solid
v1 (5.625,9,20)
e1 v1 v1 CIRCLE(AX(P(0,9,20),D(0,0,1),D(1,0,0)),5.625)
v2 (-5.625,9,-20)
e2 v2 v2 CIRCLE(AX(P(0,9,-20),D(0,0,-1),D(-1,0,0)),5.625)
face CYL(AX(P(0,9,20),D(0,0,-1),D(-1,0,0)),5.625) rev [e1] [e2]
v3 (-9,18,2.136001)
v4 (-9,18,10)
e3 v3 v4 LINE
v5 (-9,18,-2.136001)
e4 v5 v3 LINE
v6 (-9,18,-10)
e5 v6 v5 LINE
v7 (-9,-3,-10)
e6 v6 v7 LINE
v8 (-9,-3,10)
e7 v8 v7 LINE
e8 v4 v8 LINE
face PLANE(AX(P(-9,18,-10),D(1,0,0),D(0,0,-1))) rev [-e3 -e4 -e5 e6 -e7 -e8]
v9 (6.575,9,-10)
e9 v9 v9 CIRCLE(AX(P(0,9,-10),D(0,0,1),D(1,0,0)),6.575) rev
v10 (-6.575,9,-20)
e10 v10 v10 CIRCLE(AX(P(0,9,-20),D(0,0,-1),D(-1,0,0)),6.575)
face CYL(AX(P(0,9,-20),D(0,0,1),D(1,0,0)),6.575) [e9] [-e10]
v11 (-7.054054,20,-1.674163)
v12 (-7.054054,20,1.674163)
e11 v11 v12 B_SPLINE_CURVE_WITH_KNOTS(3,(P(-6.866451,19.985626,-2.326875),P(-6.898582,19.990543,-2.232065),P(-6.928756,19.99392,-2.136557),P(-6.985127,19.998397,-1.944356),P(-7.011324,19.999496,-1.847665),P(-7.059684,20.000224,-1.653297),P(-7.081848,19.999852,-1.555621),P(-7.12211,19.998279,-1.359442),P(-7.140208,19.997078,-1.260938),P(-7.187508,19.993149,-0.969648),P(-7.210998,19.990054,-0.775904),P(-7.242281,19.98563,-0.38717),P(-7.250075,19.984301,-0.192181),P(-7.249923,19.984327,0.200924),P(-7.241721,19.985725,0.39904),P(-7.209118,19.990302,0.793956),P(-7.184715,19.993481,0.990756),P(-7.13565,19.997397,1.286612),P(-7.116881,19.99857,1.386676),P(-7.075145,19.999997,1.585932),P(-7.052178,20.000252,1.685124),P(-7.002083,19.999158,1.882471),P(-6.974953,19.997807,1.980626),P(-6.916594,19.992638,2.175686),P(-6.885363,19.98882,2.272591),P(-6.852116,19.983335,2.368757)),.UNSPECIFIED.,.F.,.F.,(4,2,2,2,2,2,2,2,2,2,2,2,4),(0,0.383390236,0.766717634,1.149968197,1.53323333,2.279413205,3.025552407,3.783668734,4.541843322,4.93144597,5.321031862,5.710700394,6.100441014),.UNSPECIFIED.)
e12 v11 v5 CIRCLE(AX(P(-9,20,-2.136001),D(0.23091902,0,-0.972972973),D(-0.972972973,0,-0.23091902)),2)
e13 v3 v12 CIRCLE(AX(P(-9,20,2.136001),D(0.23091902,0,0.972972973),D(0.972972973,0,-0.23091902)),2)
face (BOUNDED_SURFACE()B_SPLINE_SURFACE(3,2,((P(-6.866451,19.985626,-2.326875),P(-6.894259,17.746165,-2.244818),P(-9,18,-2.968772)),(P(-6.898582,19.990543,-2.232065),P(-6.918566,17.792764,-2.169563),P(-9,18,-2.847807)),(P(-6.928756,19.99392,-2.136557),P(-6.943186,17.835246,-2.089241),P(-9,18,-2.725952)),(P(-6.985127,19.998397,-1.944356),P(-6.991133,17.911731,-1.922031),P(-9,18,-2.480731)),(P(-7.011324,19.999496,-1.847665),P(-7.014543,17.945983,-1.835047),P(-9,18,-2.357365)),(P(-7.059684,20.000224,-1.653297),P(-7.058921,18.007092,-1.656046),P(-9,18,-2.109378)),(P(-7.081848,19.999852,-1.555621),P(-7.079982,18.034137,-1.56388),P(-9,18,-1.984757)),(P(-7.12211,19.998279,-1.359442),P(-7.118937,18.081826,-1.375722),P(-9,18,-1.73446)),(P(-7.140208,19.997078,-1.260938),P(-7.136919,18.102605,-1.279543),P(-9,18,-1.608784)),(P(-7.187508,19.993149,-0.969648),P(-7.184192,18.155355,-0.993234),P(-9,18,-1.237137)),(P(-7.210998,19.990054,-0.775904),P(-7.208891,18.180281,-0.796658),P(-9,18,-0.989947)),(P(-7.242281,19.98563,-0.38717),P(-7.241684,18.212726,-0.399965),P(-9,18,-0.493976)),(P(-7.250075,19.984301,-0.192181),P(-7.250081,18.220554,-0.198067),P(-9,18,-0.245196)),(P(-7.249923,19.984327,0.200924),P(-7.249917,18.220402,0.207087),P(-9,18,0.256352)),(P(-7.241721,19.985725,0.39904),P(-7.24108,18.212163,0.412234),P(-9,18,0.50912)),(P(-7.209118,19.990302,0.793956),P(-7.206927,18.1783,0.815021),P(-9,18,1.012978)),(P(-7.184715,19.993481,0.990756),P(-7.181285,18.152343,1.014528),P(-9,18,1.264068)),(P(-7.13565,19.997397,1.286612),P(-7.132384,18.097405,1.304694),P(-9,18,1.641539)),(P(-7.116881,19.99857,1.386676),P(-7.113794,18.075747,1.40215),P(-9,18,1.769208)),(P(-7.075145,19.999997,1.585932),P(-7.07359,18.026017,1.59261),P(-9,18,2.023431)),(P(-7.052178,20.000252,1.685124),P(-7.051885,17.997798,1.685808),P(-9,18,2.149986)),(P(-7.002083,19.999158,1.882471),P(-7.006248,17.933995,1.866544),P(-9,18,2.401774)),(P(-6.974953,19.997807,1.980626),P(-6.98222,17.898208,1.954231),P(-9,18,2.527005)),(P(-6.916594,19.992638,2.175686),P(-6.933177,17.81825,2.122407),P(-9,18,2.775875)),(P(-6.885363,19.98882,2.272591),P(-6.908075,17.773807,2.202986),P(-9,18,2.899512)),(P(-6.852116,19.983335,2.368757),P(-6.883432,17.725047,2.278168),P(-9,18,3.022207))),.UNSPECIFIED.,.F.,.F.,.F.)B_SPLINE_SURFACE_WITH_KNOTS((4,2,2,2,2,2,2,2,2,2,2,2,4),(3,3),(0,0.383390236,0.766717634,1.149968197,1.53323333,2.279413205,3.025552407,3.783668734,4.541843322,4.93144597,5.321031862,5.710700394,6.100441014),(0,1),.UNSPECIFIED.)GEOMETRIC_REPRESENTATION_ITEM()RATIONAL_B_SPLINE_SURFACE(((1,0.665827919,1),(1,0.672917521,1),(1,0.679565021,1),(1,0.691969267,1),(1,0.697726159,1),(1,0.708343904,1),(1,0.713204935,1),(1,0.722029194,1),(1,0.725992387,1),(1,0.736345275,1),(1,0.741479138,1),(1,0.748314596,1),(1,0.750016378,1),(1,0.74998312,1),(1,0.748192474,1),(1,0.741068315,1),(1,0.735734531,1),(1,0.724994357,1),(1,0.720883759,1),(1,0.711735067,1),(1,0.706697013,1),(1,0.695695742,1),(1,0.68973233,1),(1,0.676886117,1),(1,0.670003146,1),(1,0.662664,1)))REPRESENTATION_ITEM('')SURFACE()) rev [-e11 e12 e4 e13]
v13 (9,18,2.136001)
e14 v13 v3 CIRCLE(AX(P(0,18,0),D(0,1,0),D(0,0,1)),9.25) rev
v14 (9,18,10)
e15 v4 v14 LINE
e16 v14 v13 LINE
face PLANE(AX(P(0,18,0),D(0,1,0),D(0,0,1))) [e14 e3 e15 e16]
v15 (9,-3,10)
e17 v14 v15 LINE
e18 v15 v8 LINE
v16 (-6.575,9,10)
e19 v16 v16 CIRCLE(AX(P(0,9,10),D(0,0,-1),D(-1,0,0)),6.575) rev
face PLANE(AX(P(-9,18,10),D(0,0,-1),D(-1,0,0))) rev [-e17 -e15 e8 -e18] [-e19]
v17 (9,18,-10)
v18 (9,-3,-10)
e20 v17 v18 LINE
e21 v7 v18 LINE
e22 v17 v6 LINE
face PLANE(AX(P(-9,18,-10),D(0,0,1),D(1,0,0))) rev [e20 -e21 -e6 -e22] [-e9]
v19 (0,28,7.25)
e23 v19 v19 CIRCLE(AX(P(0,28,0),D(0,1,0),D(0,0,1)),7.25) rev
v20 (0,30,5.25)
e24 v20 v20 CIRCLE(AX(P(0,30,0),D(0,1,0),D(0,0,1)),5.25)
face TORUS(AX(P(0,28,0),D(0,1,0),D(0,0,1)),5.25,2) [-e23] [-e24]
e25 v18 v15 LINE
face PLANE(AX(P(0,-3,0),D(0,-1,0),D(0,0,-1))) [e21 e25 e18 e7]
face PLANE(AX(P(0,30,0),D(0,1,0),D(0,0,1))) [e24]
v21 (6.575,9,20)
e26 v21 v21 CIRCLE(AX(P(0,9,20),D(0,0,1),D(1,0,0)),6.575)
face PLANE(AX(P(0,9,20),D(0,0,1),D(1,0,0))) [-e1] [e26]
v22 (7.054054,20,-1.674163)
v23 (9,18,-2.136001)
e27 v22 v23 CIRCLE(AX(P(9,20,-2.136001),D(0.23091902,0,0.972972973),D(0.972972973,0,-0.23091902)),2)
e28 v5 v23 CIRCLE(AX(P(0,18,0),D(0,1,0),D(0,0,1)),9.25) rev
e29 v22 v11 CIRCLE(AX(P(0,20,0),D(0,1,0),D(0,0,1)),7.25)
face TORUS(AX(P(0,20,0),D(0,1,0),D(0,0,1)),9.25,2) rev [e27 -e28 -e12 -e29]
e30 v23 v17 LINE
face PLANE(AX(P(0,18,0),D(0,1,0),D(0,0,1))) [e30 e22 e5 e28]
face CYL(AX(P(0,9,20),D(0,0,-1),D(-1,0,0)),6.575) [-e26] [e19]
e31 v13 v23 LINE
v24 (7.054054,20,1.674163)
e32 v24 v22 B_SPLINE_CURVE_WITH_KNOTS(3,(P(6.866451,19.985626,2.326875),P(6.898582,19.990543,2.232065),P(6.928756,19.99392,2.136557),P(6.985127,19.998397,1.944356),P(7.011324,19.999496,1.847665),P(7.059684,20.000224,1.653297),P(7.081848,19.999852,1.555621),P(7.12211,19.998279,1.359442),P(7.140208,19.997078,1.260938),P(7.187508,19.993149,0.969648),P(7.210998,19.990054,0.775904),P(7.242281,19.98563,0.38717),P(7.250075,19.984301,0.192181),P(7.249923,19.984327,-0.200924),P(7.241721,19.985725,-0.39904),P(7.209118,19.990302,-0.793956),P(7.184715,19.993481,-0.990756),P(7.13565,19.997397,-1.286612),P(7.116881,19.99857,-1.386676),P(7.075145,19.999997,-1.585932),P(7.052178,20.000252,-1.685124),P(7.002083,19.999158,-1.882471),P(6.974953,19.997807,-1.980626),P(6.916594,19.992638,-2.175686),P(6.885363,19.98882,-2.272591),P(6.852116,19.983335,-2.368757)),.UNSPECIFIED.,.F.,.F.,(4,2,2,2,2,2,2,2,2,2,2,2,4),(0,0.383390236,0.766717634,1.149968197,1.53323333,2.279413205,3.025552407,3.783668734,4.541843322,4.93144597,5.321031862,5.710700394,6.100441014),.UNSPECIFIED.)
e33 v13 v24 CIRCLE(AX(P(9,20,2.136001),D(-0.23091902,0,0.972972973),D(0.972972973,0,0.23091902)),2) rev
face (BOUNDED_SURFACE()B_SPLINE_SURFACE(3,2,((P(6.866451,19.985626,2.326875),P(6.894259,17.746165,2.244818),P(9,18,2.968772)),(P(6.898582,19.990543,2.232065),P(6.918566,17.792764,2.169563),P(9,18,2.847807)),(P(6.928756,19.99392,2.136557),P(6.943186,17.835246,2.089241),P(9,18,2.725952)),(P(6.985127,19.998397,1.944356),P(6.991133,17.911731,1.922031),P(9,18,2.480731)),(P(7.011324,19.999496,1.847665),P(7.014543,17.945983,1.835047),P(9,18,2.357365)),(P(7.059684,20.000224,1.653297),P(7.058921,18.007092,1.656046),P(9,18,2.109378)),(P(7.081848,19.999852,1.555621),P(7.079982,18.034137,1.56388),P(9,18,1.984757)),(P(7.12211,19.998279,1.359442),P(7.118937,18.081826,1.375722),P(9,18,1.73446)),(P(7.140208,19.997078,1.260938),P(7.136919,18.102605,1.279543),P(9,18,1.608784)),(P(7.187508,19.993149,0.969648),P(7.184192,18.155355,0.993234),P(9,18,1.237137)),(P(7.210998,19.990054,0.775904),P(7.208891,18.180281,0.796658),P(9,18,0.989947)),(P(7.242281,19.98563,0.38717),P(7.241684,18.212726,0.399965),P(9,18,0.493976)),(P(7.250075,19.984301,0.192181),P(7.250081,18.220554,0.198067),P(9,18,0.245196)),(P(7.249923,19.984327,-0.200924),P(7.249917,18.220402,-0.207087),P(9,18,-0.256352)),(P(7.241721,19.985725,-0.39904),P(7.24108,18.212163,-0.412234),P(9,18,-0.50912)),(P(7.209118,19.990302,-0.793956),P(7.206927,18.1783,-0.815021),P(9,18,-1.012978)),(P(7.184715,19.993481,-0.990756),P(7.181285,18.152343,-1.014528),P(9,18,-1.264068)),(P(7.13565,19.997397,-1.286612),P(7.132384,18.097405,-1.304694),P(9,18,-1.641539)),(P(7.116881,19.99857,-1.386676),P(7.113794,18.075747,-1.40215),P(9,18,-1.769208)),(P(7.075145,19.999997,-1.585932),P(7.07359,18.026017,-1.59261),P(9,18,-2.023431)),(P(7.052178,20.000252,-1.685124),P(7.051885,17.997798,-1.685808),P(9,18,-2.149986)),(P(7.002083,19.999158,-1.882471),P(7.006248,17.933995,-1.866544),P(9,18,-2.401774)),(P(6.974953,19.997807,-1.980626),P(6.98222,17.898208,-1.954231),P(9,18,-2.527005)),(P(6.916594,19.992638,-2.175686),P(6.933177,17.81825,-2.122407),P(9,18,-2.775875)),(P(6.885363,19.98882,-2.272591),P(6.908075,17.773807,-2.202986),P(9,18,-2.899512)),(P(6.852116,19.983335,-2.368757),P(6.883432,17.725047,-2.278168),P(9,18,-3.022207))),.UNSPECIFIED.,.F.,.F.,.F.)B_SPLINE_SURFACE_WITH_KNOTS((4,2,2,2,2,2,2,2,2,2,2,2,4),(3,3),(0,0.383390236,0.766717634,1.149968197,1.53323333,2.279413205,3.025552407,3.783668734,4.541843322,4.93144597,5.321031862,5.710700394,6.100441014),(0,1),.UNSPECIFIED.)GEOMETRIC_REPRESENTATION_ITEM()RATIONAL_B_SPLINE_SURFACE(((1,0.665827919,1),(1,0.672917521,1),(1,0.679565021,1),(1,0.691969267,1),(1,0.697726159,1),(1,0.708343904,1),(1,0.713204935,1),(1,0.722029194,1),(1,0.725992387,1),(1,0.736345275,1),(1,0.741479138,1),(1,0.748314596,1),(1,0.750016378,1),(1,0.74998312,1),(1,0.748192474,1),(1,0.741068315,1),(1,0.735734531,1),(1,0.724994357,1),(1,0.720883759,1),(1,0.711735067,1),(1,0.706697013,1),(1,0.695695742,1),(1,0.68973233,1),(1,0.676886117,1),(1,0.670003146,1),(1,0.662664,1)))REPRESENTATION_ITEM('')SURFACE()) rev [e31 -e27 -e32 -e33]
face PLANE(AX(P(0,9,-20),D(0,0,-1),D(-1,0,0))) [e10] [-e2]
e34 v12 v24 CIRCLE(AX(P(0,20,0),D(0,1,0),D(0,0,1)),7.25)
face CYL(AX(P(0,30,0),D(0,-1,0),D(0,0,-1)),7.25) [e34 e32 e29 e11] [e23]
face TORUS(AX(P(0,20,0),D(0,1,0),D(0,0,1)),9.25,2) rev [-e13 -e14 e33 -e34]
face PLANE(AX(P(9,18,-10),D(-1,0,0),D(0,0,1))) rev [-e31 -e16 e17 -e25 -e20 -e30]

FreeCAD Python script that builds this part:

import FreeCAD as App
import Part
import Sketcher

V = App.Vector


def edges_at(feature, points):
    """Names of the edges that pass closest to the given points."""
    edges = feature.Shape.Edges
    near = lambda p: min(range(len(edges)), key=lambda i: edges[i].distToShape(Part.Vertex(*p))[0])
    return sorted({f"Edge{near(p) + 1}" for p in points})

doc = App.newDocument("Part")
body = doc.addObject("PartDesign::Body", "Body")

# Sketch on XZ plane
sketch1 = body.newObject("Sketcher::SketchObject", "Sketch")
sketch1.AttachmentSupport = (doc.getObject("XZ_Plane"), [""])
sketch1.MapMode = "FlatFace"
sketch1.addGeometry([
    Part.LineSegment(V(-9, -10, 0), V(-9, 10, 0)),
    Part.LineSegment(V(-9, 10, 0), V(9, 10, 0)),
    Part.LineSegment(V(9, 10, 0), V(9, -10, 0)),
    Part.LineSegment(V(9, -10, 0), V(-9, -10, 0)),
], False)
sketch1.addConstraint([
    Sketcher.Constraint("Coincident", 0, 2, 1, 1),
    Sketcher.Constraint("Coincident", 1, 2, 2, 1),
    Sketcher.Constraint("Coincident", 2, 2, 3, 1),
    Sketcher.Constraint("Coincident", 3, 2, 0, 1),
    Sketcher.Constraint("Vertical", 0),
    Sketcher.Constraint("Horizontal", 1),
    Sketcher.Constraint("Vertical", 2),
    Sketcher.Constraint("Horizontal", 3),
    Sketcher.Constraint("Symmetric", 0, 2, 2, 2, -1, 1),
    Sketcher.Constraint("DistanceX", 1, 1, 1, 2, 18.0),
    Sketcher.Constraint("DistanceY", 0, 1, 0, 2, 20.0),
])
pad1 = body.newObject("PartDesign::Pad", "Pad")
pad1.Profile = sketch1
pad1.Length = 18
pad1.Reversed = True

# Sketch on XZ plane
sketch2 = body.newObject("Sketcher::SketchObject", "Sketch001")
sketch2.AttachmentSupport = (doc.getObject("XZ_Plane"), [""])
sketch2.MapMode = "FlatFace"
sketch2.AttachmentOffset = App.Placement(V(0, 0, -18), App.Rotation())
sketch2.addGeometry(Part.Circle(V(0, 0, 0), V(0, 0, 1), 7.25), False)
sketch2.addConstraint([
    Sketcher.Constraint("Coincident", 0, 3, -1, 1),
    Sketcher.Constraint("Diameter", 0, 14.5),
])
pad2 = body.newObject("PartDesign::Pad", "Pad001")
pad2.Profile = sketch2
pad2.Length = 12
pad2.Reversed = True
doc.recompute()

fillet = body.newObject("PartDesign::Fillet", "Fillet")
fillet.Base = (pad2, edges_at(pad2, [(0, 18, -7.25), (0, 30, -7.25)]))
fillet.Radius = 2

# Sketch on XY plane
sketch3 = body.newObject("Sketcher::SketchObject", "Sketch002")
sketch3.AttachmentSupport = (doc.getObject("XY_Plane"), [""])
sketch3.MapMode = "FlatFace"
sketch3.AttachmentOffset = App.Placement(V(0, 0, 10), App.Rotation())
sketch3.addGeometry([
    Part.Circle(V(0, 9, 0), V(0, 0, 1), 6.575),
    Part.Circle(V(0, 9, 0), V(0, 0, 1), 5.625),
], False)
sketch3.addConstraint([
    Sketcher.Constraint("Coincident", 1, 3, 0, 3),
    Sketcher.Constraint("PointOnObject", 0, 3, -2),
    Sketcher.Constraint("Diameter", 0, 13.15),
    Sketcher.Constraint("Diameter", 1, 11.25),
    Sketcher.Constraint("DistanceY", -1, 1, 0, 3, 9.0),
])
pad3 = body.newObject("PartDesign::Pad", "Pad002")
pad3.Profile = sketch3
pad3.Length = 10

# Sketch on XY plane
sketch4 = body.newObject("Sketcher::SketchObject", "Sketch003")
sketch4.AttachmentSupport = (doc.getObject("XY_Plane"), [""])
sketch4.MapMode = "FlatFace"
sketch4.AttachmentOffset = App.Placement(V(0, 0, -20), App.Rotation())
sketch4.addGeometry([
    Part.Circle(V(0, 9, 0), V(0, 0, 1), 6.575),
    Part.Circle(V(0, 9, 0), V(0, 0, 1), 5.625),
], False)
sketch4.addConstraint([
    Sketcher.Constraint("Coincident", 1, 3, 0, 3),
    Sketcher.Constraint("PointOnObject", 0, 3, -2),
    Sketcher.Constraint("Diameter", 0, 13.15),
    Sketcher.Constraint("Diameter", 1, 11.25),
    Sketcher.Constraint("DistanceY", -1, 1, 0, 3, 9.0),
])
pad4 = body.newObject("PartDesign::Pad", "Pad003")
pad4.Profile = sketch4
pad4.Length = 10

# Sketch on XY plane
sketch5 = body.newObject("Sketcher::SketchObject", "Sketch004")
sketch5.AttachmentSupport = (doc.getObject("XY_Plane"), [""])
sketch5.MapMode = "FlatFace"
sketch5.AttachmentOffset = App.Placement(V(0, 0, -10), App.Rotation())
sketch5.addGeometry(Part.Circle(V(0, 9, 0), V(0, 0, 1), 5.625), False)
sketch5.addConstraint([
    Sketcher.Constraint("PointOnObject", 0, 3, -2),
    Sketcher.Constraint("Diameter", 0, 11.25),
    Sketcher.Constraint("DistanceY", -1, 1, 0, 3, 9.0),
])
pocket1 = body.newObject("PartDesign::Pocket", "Pocket")
pocket1.Profile = sketch5
pocket1.Length = 41
pocket1.Reversed = True

# Sketch on XZ plane
sketch6 = body.newObject("Sketcher::SketchObject", "Sketch005")
sketch6.AttachmentSupport = (doc.getObject("XZ_Plane"), [""])
sketch6.MapMode = "FlatFace"
sketch6.addGeometry([
    Part.LineSegment(V(-9, 10, 0), V(-9, -10, 0)),
    Part.LineSegment(V(-9, -10, 0), V(9, -10, 0)),
    Part.LineSegment(V(9, -10, 0), V(9, 10, 0)),
    Part.LineSegment(V(9, 10, 0), V(-9, 10, 0)),
], False)
sketch6.addConstraint([
    Sketcher.Constraint("Coincident", 0, 2, 1, 1),
    Sketcher.Constraint("Coincident", 1, 2, 2, 1),
    Sketcher.Constraint("Coincident", 2, 2, 3, 1),
    Sketcher.Constraint("Coincident", 3, 2, 0, 1),
    Sketcher.Constraint("Vertical", 0),
    Sketcher.Constraint("Horizontal", 1),
    Sketcher.Constraint("Vertical", 2),
    Sketcher.Constraint("Horizontal", 3),
    Sketcher.Constraint("Symmetric", 0, 2, 2, 2, -1, 1),
    Sketcher.Constraint("DistanceX", 1, 1, 1, 2, 18.0),
    Sketcher.Constraint("DistanceY", 0, 2, 0, 1, 20.0),
])
pad5 = body.newObject("PartDesign::Pad", "Pad004")
pad5.Profile = sketch6
pad5.Length = 3

doc.recompute()
